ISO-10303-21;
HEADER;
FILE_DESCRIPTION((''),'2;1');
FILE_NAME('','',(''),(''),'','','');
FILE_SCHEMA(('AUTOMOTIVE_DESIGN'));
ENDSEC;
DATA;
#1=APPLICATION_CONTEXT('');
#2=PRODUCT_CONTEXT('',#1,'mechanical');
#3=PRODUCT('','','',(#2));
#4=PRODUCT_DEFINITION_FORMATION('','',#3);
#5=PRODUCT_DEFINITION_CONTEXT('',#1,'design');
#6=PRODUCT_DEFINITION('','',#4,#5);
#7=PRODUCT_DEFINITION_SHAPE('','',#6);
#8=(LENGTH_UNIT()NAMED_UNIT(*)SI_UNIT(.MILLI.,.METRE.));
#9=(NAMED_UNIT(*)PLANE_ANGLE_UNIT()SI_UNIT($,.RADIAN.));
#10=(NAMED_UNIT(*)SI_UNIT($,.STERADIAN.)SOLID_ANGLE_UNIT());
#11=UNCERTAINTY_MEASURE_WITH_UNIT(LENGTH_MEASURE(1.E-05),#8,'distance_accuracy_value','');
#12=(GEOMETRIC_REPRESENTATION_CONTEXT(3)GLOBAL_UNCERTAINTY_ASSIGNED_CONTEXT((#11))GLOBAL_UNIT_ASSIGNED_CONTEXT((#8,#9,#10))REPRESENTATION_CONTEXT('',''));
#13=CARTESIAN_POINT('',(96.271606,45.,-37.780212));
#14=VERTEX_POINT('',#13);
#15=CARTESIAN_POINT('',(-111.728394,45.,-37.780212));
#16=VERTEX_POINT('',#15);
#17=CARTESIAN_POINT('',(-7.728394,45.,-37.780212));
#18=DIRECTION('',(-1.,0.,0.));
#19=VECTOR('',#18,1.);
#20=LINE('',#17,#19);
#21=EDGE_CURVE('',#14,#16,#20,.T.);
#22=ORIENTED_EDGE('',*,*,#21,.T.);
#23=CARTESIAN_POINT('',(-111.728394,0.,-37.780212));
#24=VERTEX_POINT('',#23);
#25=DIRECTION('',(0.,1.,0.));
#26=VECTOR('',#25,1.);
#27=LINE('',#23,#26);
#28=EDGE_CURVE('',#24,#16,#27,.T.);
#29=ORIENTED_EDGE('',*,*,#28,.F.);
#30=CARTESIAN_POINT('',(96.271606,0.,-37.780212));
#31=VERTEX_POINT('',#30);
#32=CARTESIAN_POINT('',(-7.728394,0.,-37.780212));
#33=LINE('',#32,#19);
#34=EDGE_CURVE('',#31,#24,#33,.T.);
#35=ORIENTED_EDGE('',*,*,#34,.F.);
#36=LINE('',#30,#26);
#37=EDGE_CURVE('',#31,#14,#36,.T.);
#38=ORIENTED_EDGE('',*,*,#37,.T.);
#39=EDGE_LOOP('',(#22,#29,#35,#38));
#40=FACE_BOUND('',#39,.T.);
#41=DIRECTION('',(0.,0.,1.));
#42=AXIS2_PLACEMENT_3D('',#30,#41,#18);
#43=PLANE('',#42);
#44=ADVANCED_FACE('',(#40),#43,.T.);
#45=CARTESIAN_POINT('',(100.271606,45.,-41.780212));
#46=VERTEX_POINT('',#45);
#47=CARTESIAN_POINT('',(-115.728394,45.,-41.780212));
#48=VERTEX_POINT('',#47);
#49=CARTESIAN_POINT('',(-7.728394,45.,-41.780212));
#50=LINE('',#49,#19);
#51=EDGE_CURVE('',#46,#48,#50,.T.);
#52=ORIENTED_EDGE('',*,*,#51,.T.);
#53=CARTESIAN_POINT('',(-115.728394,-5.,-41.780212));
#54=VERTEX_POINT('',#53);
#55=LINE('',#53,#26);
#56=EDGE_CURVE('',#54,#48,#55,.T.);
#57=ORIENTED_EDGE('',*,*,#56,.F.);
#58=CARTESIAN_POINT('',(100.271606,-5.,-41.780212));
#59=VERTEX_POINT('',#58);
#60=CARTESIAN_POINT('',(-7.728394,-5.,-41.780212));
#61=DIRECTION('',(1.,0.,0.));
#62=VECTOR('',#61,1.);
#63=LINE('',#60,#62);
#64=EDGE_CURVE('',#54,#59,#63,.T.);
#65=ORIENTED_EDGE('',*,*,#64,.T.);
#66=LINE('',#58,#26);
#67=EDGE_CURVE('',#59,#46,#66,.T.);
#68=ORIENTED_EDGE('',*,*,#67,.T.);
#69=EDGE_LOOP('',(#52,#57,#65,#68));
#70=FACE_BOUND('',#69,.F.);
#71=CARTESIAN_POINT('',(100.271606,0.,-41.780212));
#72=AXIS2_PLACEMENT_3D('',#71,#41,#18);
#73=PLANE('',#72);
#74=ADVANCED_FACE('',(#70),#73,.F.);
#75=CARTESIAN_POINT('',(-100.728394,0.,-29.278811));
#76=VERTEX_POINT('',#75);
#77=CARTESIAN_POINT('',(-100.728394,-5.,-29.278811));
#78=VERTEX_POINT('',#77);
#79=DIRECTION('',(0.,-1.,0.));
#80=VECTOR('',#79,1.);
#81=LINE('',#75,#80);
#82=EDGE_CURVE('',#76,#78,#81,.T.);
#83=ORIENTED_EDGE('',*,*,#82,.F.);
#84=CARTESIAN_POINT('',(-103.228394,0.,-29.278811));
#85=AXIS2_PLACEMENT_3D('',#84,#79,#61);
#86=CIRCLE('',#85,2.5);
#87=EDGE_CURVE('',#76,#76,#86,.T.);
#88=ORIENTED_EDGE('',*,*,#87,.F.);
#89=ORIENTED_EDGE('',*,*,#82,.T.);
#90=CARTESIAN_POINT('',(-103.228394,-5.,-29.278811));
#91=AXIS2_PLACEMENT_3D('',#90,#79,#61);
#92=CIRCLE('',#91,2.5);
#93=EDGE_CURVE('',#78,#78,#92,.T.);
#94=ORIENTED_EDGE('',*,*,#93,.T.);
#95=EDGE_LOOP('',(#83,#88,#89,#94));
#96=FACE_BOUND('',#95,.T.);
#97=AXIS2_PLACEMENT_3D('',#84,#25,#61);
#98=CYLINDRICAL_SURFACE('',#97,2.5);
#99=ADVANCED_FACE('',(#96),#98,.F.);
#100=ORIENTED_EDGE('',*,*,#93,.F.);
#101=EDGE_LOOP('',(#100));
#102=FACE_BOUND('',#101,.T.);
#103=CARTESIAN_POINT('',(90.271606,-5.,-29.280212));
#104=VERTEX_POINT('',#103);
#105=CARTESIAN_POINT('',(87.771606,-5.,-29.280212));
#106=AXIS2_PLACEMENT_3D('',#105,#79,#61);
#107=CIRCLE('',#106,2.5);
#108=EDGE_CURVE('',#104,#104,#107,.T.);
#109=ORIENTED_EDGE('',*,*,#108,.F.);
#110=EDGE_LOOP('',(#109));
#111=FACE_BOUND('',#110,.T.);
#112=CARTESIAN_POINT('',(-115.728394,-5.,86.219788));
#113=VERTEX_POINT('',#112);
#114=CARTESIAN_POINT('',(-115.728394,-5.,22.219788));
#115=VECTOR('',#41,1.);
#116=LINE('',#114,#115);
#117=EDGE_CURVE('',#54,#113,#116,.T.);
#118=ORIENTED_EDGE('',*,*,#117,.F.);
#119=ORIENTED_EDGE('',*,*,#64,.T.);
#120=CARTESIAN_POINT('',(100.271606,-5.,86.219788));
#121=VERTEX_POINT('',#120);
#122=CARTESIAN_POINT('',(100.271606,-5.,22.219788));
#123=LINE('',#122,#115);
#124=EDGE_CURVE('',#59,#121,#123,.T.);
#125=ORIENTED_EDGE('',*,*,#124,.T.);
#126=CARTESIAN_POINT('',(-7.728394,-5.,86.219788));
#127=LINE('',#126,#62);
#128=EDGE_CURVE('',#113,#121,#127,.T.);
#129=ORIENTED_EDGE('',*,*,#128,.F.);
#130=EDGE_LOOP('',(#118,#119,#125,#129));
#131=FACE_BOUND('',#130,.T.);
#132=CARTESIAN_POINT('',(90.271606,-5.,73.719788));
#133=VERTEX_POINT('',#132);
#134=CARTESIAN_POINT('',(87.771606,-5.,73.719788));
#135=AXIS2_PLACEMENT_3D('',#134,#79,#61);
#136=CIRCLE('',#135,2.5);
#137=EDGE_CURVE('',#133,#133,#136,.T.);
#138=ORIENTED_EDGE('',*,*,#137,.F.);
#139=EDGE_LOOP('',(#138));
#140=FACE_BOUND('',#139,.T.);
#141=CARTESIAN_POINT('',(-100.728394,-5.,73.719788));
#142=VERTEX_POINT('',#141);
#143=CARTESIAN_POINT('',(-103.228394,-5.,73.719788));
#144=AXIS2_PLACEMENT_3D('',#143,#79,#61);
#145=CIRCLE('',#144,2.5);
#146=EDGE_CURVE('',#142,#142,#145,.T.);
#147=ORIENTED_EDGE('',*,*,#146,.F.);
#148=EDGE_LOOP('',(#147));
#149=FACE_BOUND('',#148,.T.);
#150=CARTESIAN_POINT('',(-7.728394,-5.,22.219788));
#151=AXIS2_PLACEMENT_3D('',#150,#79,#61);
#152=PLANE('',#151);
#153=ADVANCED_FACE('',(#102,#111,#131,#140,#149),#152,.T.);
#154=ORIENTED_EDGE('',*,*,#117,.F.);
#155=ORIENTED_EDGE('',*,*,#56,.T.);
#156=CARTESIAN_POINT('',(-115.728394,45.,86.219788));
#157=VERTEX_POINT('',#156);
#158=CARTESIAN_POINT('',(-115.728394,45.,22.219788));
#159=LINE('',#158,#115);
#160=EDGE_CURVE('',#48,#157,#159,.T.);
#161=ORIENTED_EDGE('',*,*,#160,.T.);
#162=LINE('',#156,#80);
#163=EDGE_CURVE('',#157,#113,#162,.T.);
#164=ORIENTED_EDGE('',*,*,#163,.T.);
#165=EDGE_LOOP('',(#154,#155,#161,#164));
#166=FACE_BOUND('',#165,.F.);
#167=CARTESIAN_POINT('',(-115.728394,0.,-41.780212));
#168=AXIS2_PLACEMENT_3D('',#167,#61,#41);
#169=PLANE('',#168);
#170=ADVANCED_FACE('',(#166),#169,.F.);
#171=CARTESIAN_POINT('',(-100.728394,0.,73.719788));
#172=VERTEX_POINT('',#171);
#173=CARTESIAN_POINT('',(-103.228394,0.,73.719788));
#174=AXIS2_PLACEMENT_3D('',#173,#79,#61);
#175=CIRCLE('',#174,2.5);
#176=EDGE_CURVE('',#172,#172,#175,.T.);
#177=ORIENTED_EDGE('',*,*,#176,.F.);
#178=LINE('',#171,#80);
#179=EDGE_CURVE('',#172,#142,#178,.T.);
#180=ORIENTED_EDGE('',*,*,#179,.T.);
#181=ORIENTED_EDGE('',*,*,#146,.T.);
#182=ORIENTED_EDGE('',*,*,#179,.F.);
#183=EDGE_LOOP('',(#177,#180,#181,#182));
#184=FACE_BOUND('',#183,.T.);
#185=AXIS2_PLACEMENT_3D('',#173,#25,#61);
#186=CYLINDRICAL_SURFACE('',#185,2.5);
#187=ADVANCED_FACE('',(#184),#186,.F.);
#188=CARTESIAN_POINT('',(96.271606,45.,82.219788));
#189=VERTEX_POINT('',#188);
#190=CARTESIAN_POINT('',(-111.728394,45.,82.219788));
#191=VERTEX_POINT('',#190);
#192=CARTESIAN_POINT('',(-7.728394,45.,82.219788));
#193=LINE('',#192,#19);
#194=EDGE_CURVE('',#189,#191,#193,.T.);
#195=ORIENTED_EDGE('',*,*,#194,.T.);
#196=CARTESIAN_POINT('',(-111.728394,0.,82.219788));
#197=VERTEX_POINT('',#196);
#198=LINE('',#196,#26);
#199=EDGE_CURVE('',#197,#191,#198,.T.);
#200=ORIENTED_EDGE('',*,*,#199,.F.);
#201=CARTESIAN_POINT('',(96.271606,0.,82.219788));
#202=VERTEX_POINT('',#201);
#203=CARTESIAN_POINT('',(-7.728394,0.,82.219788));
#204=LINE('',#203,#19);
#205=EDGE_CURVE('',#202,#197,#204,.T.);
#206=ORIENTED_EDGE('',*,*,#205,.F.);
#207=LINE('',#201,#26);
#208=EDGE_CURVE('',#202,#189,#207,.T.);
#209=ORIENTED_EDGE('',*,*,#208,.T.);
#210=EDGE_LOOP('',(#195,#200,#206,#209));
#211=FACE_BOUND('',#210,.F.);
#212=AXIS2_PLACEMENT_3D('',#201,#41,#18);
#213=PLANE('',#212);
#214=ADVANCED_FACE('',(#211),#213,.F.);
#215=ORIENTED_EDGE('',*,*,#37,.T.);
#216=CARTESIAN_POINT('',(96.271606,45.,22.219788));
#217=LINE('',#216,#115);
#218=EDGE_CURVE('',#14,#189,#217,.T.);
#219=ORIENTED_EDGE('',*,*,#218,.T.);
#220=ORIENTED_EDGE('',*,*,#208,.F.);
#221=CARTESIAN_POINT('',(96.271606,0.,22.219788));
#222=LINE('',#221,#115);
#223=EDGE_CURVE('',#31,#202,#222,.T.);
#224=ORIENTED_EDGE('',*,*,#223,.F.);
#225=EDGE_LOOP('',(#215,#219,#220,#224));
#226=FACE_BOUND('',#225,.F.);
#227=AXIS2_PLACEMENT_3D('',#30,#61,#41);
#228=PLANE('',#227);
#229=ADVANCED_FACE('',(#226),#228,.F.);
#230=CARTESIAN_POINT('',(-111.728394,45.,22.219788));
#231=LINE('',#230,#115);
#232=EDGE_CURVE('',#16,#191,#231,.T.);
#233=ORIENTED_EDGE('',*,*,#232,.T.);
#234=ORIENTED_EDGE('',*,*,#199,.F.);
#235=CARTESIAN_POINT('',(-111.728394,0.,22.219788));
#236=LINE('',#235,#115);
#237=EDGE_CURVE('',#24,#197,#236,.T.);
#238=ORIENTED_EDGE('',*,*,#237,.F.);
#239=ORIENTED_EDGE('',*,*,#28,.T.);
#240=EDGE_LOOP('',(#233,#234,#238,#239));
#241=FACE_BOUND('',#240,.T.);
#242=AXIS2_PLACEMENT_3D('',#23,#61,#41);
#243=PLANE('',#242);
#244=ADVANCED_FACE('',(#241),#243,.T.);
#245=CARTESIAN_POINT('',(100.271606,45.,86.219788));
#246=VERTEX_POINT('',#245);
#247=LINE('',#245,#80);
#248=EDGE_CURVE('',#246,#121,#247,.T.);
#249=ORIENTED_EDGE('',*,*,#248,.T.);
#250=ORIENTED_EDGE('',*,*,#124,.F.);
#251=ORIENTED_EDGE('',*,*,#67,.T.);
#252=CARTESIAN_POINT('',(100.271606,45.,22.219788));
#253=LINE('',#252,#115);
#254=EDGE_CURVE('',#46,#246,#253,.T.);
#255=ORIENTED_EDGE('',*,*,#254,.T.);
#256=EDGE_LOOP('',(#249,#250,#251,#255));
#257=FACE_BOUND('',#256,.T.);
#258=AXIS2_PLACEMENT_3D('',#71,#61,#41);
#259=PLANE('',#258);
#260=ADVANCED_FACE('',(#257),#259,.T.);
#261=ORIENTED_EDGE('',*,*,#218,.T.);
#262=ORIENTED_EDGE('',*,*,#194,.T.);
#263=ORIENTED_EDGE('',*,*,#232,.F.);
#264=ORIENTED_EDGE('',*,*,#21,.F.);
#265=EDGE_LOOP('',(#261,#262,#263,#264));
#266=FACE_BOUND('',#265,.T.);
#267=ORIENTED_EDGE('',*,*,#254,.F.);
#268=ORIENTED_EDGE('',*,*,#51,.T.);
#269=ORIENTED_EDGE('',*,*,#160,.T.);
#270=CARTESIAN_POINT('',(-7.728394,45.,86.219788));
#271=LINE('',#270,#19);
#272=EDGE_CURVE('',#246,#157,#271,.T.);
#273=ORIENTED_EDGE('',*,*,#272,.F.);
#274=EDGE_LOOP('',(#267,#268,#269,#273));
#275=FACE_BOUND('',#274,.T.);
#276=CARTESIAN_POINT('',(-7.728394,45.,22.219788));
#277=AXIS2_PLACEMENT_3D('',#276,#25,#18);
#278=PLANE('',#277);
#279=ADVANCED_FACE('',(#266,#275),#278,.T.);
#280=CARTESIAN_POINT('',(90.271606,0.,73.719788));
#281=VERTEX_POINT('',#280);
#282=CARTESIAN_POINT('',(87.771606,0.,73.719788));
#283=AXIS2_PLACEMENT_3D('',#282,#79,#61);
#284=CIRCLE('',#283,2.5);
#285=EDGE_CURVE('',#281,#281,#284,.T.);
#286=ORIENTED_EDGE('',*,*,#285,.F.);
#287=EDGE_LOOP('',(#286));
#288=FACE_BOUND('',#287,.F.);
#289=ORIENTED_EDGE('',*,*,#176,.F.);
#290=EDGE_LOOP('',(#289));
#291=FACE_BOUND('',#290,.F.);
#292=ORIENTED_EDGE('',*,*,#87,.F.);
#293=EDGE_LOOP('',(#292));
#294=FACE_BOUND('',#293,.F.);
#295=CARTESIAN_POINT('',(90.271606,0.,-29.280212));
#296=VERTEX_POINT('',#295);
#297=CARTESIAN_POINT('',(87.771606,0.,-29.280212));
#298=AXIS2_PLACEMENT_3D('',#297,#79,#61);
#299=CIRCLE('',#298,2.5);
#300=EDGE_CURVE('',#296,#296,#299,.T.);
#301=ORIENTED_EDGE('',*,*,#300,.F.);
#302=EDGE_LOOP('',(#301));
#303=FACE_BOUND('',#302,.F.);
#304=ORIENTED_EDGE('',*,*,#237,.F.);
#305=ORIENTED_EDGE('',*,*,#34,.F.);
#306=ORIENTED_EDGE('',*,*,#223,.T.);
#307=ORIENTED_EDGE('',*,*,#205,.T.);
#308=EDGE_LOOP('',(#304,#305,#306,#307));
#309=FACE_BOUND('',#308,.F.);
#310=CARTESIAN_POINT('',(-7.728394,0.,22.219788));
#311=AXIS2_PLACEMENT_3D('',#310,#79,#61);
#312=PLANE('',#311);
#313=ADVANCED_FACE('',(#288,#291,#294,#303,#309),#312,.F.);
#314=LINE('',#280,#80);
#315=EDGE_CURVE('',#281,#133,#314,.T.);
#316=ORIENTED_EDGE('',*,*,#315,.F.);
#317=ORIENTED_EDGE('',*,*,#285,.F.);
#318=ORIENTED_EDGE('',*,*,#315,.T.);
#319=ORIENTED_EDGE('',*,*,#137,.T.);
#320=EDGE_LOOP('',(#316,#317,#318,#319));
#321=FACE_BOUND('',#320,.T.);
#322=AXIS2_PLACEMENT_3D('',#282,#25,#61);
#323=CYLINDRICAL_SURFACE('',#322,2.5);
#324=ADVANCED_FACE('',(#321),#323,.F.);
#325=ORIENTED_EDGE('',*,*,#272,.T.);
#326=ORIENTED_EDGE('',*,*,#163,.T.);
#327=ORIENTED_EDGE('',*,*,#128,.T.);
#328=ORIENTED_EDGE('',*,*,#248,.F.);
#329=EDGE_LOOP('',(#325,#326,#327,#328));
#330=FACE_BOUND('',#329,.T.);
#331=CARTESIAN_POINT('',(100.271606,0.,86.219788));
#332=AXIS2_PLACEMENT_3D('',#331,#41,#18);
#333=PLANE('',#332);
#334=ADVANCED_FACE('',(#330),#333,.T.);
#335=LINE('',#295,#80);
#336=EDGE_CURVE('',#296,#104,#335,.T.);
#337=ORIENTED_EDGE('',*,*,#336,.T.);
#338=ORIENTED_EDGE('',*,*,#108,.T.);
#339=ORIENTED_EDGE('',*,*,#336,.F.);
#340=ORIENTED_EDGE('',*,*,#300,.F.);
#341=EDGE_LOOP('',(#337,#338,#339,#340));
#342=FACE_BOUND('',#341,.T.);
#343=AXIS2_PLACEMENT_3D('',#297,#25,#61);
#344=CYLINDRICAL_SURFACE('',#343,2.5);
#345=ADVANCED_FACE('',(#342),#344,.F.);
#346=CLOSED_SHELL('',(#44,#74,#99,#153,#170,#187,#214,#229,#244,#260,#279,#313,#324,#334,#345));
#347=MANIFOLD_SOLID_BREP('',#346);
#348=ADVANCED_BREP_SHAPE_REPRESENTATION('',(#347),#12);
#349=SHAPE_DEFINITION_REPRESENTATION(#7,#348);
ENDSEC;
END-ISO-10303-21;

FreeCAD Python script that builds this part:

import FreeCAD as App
import Part
import Sketcher
from FreeCAD import Vector
Q = App.Units.Quantity

doc = App.newDocument("Part")
body = doc.addObject("PartDesign::Body", "Body")

# Sketch on XZ plane
sketch1 = body.newObject("Sketcher::SketchObject", "Sketch")
sketch1.AttachmentSupport = (doc.getObject("XZ_Plane"), [""])
sketch1.MapMode = "FlatFace"
sketch1.addGeometry(Part.LineSegment(Vector(-115.7, 86.2, 0), Vector(-115.7, -41.8, 0)), False)
sketch1.addGeometry(Part.LineSegment(Vector(-115.7, -41.8, 0), Vector(100.3, -41.8, 0)), False)
sketch1.addGeometry(Part.LineSegment(Vector(100.3, -41.8, 0), Vector(100.3, 86.2, 0)), False)
sketch1.addGeometry(Part.LineSegment(Vector(100.3, 86.2, 0), Vector(-115.7, 86.2, 0)), False)
sketch1.addGeometry(Part.Circle(Vector(-103.2, -29.3, 0), Vector(0, 0, 1), 2.5), False)
sketch1.addGeometry(Part.Circle(Vector(87.8, -29.3, 0), Vector(0, 0, 1), 2.5), False)
sketch1.addGeometry(Part.Circle(Vector(-103.2, 73.7, 0), Vector(0, 0, 1), 2.5), False)
sketch1.addGeometry(Part.Circle(Vector(87.8, 73.7, 0), Vector(0, 0, 1), 2.5), False)
sketch1.addConstraint(Sketcher.Constraint("Coincident", 0, 2, 1, 1))
sketch1.addConstraint(Sketcher.Constraint("Coincident", 1, 2, 2, 1))
sketch1.addConstraint(Sketcher.Constraint("Coincident", 2, 2, 3, 1))
sketch1.addConstraint(Sketcher.Constraint("Coincident", 3, 2, 0, 1))
sketch1.addConstraint(Sketcher.Constraint("Vertical", 0))
sketch1.addConstraint(Sketcher.Constraint("Horizontal", 1))
sketch1.addConstraint(Sketcher.Constraint("Vertical", 2))
sketch1.addConstraint(Sketcher.Constraint("Horizontal", 3))
sketch1.addConstraint(Sketcher.Constraint("Equal", 4, 5))
sketch1.addConstraint(Sketcher.Constraint("Equal", 5, 6))
sketch1.addConstraint(Sketcher.Constraint("Equal", 6, 7))
sketch1.addConstraint(Sketcher.Constraint("Horizontal", 6, 3, 7, 3))
sketch1.addConstraint(Sketcher.Constraint("Vertical", 4, 3, 6, 3))
sketch1.addConstraint(Sketcher.Constraint("Vertical", 5, 3, 7, 3))
sketch1.addConstraint(Sketcher.Constraint("Diameter", 4, Q("5 mm")))
sketch1.addConstraint(Sketcher.Constraint("DistanceX", 1, 1, 1, 2, Q("216 mm")))
sketch1.addConstraint(Sketcher.Constraint("DistanceY", 0, 2, 0, 1, Q("128 mm")))
sketch1.addConstraint(Sketcher.Constraint("DistanceX", 4, 3, 5, 3, Q("191 mm")))
sketch1.addConstraint(Sketcher.Constraint("DistanceY", 5, 3, 6, 3, Q("103 mm")))
sketch1.addConstraint(Sketcher.Constraint("DistanceX", 0, 2, 4, 3, Q("12.5 mm")))
sketch1.addConstraint(Sketcher.Constraint("DistanceY", 0, 2, 6, 3, Q("115.5 mm")))
sketch1.addConstraint(Sketcher.Constraint("DistanceY", 5, 3, 4, 3, Q("0.001401 mm")))
sketch1.addConstraint(Sketcher.Constraint("DistanceY", 4, 3, -1, 1, Q("29.278811 mm")))
sketch1.addConstraint(Sketcher.Constraint("DistanceX", 4, 3, -1, 1, Q("103.228394 mm")))
pad1 = body.newObject("PartDesign::Pad", "Pad")
pad1.Profile = sketch1
pad1.Length = 5

# Sketch on XZ plane
sketch2 = body.newObject("Sketcher::SketchObject", "Sketch001")
sketch2.AttachmentSupport = (doc.getObject("XZ_Plane"), [""])
sketch2.MapMode = "FlatFace"
sketch2.addGeometry(Part.LineSegment(Vector(100, 86, 0), Vector(100, -42, 0)), False)
sketch2.addGeometry(Part.LineSegment(Vector(100, -42, 0), Vector(-116, -42, 0)), False)
sketch2.addGeometry(Part.LineSegment(Vector(-116, -42, 0), Vector(-116, 86, 0)), False)
sketch2.addGeometry(Part.LineSegment(Vector(-116, 86, 0), Vector(100, 86, 0)), False)
sketch2.addGeometry(Part.LineSegment(Vector(-112, -38, 0), Vector(96, -38, 0)), False)
sketch2.addGeometry(Part.LineSegment(Vector(96, -38, 0), Vector(96, 82, 0)), False)
sketch2.addGeometry(Part.LineSegment(Vector(96, 82, 0), Vector(-112, 82, 0)), False)
sketch2.addGeometry(Part.LineSegment(Vector(-112, 82, 0), Vector(-112, -38, 0)), False)
sketch2.addConstraint(Sketcher.Constraint("Coincident", 0, 2, 1, 1))
sketch2.addConstraint(Sketcher.Constraint("Coincident", 1, 2, 2, 1))
sketch2.addConstraint(Sketcher.Constraint("Coincident", 2, 2, 3, 1))
sketch2.addConstraint(Sketcher.Constraint("Coincident", 3, 2, 0, 1))
sketch2.addConstraint(Sketcher.Constraint("Coincident", 4, 2, 5, 1))
sketch2.addConstraint(Sketcher.Constraint("Coincident", 5, 2, 6, 1))
sketch2.addConstraint(Sketcher.Constraint("Coincident", 6, 2, 7, 1))
sketch2.addConstraint(Sketcher.Constraint("Coincident", 7, 2, 4, 1))
sketch2.addConstraint(Sketcher.Constraint("Vertical", 0))
sketch2.addConstraint(Sketcher.Constraint("Horizontal", 1))
sketch2.addConstraint(Sketcher.Constraint("Vertical", 2))
sketch2.addConstraint(Sketcher.Constraint("Horizontal", 3))
sketch2.addConstraint(Sketcher.Constraint("Horizontal", 4))
sketch2.addConstraint(Sketcher.Constraint("Vertical", 5))
sketch2.addConstraint(Sketcher.Constraint("Horizontal", 6))
sketch2.addConstraint(Sketcher.Constraint("Vertical", 7))
sketch2.addConstraint(Sketcher.Constraint("DistanceX", 1, 2, 1, 1, Q("216 mm")))
sketch2.addConstraint(Sketcher.Constraint("DistanceX", 4, 1, 4, 2, Q("208 mm")))
sketch2.addConstraint(Sketcher.Constraint("DistanceY", 0, 2, 0, 1, Q("128 mm")))
sketch2.addConstraint(Sketcher.Constraint("DistanceY", 5, 1, 5, 2, Q("120 mm")))
sketch2.addConstraint(Sketcher.Constraint("DistanceX", 4, 2, 0, 2, Q("4 mm")))
sketch2.addConstraint(Sketcher.Constraint("DistanceY", 0, 2, 4, 2, Q("4 mm")))
sketch2.addConstraint(Sketcher.Constraint("DistanceX", -1, 1, 0, 2, Q("100.271606 mm")))
sketch2.addConstraint(Sketcher.Constraint("DistanceY", 0, 2, -1, 1, Q("41.780212 mm")))
pad2 = body.newObject("PartDesign::Pad", "Pad001")
pad2.Profile = sketch2
pad2.Length = 45
pad2.Reversed = True

doc.recompute()
